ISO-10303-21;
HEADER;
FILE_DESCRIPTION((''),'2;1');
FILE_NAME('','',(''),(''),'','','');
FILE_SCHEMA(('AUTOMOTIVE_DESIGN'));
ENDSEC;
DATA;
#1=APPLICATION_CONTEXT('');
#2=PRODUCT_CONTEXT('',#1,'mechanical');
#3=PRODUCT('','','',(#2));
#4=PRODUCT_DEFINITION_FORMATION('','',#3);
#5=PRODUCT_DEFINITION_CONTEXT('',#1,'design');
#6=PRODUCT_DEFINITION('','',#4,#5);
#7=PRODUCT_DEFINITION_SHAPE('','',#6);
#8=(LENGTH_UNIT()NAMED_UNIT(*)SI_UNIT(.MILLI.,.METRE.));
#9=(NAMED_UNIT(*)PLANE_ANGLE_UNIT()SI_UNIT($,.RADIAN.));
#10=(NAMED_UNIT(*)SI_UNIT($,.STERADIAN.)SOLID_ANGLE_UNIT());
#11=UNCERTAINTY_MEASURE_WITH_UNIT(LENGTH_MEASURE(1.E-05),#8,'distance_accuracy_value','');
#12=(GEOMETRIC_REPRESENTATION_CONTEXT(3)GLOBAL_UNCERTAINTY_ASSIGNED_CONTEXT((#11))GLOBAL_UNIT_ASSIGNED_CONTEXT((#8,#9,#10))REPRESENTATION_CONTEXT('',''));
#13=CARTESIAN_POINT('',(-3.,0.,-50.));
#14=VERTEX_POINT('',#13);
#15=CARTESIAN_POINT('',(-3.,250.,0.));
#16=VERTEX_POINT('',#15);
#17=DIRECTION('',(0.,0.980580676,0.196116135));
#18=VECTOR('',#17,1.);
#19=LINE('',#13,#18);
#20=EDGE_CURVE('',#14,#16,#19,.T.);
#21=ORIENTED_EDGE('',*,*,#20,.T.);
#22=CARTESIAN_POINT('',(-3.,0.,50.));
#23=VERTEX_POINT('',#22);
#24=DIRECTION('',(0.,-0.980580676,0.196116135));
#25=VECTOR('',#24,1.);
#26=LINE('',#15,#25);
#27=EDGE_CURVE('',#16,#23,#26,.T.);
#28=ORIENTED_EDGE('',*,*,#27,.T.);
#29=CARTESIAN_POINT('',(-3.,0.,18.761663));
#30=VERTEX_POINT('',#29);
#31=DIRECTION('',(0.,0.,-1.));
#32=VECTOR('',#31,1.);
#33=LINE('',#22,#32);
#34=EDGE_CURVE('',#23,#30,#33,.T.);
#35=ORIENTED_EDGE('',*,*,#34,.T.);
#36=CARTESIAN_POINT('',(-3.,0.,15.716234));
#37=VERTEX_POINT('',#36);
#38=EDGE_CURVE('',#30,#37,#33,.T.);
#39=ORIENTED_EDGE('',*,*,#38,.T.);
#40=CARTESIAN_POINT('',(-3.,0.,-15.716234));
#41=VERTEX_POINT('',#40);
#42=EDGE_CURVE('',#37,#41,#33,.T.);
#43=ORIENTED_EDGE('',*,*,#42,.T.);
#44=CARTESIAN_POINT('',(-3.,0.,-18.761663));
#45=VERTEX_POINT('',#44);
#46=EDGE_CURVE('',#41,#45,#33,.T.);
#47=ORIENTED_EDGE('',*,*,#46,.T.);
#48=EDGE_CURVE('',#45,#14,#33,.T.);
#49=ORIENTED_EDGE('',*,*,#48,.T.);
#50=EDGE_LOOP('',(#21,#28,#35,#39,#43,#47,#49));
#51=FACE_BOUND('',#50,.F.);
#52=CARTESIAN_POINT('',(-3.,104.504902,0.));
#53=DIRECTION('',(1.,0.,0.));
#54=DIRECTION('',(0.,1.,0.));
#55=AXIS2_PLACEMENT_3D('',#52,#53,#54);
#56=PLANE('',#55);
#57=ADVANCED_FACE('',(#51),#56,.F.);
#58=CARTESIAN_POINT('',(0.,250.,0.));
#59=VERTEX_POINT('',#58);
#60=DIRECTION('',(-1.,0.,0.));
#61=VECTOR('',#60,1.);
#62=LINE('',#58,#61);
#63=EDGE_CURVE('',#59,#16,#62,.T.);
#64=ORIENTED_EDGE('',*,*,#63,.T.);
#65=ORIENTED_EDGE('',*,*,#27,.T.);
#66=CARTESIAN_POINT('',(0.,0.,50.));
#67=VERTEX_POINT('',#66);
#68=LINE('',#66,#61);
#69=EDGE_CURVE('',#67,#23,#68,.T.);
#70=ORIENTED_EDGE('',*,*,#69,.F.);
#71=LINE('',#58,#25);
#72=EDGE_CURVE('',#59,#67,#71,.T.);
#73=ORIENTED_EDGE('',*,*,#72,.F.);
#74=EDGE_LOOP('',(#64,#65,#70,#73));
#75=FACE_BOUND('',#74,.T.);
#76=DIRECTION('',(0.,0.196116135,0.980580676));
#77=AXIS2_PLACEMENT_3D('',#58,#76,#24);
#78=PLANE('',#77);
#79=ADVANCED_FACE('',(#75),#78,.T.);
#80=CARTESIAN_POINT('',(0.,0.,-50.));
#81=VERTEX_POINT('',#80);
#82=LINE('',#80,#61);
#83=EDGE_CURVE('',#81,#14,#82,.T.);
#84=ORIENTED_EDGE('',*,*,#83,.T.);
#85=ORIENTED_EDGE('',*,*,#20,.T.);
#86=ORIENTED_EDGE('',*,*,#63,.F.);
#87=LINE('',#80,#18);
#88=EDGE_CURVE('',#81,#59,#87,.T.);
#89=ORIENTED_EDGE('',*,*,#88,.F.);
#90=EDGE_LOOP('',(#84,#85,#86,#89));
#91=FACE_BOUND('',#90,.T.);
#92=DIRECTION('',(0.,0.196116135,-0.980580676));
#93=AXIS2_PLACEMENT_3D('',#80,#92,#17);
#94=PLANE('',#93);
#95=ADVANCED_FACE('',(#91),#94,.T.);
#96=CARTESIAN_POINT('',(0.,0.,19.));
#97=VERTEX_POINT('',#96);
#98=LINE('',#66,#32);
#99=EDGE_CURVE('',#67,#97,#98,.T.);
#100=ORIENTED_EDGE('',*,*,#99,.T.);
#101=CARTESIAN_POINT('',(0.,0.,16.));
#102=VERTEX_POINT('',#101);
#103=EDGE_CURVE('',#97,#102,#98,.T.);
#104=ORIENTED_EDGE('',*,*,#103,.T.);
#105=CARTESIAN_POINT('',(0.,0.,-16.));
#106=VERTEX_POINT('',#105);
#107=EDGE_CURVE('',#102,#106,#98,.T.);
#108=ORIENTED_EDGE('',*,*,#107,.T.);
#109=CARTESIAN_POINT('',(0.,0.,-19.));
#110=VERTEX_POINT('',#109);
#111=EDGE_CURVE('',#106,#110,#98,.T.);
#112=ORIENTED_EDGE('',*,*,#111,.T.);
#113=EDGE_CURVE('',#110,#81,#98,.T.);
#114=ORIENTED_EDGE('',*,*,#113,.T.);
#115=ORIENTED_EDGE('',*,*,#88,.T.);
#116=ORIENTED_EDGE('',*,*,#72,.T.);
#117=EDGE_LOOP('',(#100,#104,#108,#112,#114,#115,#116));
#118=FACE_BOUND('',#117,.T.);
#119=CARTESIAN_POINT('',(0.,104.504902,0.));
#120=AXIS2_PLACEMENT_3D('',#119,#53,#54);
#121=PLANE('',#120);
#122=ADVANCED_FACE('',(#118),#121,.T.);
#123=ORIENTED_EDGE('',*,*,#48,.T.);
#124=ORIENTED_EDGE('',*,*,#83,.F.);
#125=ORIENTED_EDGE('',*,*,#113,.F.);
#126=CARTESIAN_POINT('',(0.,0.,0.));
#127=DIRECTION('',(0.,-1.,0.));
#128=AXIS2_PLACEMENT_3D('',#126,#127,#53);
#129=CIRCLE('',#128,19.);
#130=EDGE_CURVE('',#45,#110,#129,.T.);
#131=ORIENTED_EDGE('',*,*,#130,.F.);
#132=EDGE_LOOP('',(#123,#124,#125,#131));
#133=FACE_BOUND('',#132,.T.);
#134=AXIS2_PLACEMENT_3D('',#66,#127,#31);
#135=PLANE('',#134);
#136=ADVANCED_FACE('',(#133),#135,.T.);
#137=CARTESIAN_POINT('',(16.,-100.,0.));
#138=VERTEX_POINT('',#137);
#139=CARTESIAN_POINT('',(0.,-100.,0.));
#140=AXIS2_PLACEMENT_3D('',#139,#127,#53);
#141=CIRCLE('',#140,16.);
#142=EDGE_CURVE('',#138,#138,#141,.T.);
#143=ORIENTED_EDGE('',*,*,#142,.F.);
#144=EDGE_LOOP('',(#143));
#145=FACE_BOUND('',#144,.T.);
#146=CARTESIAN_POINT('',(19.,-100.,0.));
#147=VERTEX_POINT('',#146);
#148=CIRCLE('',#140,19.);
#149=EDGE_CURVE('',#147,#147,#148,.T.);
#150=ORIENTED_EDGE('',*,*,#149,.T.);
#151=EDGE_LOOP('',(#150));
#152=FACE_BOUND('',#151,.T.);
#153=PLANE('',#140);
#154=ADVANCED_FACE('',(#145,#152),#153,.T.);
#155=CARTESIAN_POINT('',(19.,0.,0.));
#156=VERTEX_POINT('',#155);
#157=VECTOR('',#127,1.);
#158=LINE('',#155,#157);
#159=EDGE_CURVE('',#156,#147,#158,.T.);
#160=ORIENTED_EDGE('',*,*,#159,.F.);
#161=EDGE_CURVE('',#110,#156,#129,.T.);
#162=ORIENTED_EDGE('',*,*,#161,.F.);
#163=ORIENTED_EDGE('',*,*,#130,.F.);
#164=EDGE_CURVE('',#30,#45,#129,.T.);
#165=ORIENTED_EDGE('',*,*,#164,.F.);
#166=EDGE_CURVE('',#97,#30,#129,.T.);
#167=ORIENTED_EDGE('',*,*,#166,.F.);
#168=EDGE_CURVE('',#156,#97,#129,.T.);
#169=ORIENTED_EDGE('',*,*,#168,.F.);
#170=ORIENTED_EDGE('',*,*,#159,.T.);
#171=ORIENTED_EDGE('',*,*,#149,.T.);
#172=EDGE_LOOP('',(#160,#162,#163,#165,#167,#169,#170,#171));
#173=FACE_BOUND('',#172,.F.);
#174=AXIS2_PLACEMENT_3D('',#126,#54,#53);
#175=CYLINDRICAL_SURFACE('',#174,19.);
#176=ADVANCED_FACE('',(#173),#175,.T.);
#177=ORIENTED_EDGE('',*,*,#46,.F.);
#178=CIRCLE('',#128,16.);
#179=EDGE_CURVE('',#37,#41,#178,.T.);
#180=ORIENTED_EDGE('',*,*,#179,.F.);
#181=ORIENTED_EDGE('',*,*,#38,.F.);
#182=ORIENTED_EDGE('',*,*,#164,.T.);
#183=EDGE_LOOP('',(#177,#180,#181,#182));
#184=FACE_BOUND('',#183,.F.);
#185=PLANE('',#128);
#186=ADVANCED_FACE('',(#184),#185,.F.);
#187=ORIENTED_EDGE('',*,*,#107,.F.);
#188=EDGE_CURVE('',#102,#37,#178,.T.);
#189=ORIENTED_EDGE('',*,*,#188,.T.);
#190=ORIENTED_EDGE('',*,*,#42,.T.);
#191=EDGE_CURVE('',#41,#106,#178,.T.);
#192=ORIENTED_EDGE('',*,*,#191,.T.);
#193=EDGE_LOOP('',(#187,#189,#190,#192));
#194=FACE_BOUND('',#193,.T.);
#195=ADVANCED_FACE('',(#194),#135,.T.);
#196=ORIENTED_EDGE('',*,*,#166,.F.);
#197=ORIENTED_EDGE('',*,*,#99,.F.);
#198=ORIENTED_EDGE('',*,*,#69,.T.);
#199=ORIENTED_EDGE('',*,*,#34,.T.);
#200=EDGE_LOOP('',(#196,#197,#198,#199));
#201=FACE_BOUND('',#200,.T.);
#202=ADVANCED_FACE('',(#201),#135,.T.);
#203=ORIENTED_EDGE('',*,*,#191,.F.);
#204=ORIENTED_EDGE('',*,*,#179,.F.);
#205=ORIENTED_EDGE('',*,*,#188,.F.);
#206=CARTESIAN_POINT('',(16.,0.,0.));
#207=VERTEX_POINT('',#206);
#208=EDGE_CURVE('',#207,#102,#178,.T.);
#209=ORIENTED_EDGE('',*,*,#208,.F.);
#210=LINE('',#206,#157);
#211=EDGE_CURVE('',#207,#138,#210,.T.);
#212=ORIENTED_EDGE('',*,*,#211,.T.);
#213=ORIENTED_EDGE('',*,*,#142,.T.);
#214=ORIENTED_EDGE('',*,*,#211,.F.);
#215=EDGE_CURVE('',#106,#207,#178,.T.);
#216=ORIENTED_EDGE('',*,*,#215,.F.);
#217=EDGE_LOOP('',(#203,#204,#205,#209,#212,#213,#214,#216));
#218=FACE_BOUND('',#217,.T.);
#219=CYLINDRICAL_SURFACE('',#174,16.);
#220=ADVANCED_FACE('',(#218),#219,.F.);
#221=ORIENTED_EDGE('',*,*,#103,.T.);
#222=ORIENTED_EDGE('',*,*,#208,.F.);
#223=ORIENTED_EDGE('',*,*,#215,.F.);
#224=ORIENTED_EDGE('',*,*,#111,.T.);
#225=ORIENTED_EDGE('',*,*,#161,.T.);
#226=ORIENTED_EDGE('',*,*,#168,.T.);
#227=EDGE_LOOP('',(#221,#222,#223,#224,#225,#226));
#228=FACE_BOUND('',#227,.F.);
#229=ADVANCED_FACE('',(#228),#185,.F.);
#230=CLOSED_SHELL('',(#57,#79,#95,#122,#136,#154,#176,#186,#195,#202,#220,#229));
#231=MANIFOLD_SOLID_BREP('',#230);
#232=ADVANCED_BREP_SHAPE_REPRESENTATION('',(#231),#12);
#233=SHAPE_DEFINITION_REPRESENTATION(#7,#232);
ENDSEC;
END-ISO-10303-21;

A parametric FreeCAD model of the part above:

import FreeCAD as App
import Part
import Sketcher

V = App.Vector
Q = App.Units.Quantity

doc = App.newDocument("Part")
body = doc.addObject("PartDesign::Body", "Body")

sketch1 = doc.addObject("Sketcher::SketchObject", "Sketch")
body.addObject(sketch1)
sketch1.AttachmentSupport = (doc.XZ_Plane, [""])
sketch1.MapMode = "FlatFace"
sketch1.addGeometry(Part.Circle(V(0, 0, 0), V(0, 0, 1), 19), False)
sketch1.addGeometry(Part.Circle(V(0, 0, 0), V(0, 0, 1), 16), False)
sketch1.addConstraint(Sketcher.Constraint("Coincident", 0, 3, -1, 1))
sketch1.addConstraint(Sketcher.Constraint("Coincident", 1, 3, -1, 1))
sketch1.addConstraint(Sketcher.Constraint("Diameter", 0, Q("38 mm")))
sketch1.addConstraint(Sketcher.Constraint("Diameter", 1, Q("32 mm")))
pad1 = doc.addObject("PartDesign::Pad", "Pad")
body.addObject(pad1)
pad1.Profile = sketch1
pad1.Length = 100

sketch2 = doc.addObject("Sketcher::SketchObject", "Sketch001")
body.addObject(sketch2)
sketch2.AttachmentSupport = (doc.YZ_Plane, [""])
sketch2.MapMode = "FlatFace"
sketch2.addGeometry(Part.LineSegment(V(0, -50, 0), V(250, 0, 0)), False)
sketch2.addGeometry(Part.LineSegment(V(250, 0, 0), V(0, 50, 0)), False)
sketch2.addGeometry(Part.LineSegment(V(0, 50, 0), V(0, -50, 0)), False)
sketch2.addConstraint(Sketcher.Constraint("Coincident", 0, 2, 1, 1))
sketch2.addConstraint(Sketcher.Constraint("Coincident", 1, 2, 2, 1))
sketch2.addConstraint(Sketcher.Constraint("Coincident", 2, 2, 0, 1))
sketch2.addConstraint(Sketcher.Constraint("Vertical", 2))
sketch2.addConstraint(Sketcher.Constraint("Symmetric", 1, 2, 2, 2, -1, 1))
sketch2.addConstraint(Sketcher.Constraint("PointOnObject", 0, 2, -1))
sketch2.addConstraint(Sketcher.Constraint("DistanceY", 2, 2, 2, 1, Q("100 mm")))
sketch2.addConstraint(Sketcher.Constraint("DistanceX", -1, 1, 0, 2, Q("250 mm")))
pad2 = doc.addObject("PartDesign::Pad", "Pad001")
body.addObject(pad2)
pad2.Profile = sketch2
pad2.Length = 3
pad2.Reversed = True

doc.recompute()
